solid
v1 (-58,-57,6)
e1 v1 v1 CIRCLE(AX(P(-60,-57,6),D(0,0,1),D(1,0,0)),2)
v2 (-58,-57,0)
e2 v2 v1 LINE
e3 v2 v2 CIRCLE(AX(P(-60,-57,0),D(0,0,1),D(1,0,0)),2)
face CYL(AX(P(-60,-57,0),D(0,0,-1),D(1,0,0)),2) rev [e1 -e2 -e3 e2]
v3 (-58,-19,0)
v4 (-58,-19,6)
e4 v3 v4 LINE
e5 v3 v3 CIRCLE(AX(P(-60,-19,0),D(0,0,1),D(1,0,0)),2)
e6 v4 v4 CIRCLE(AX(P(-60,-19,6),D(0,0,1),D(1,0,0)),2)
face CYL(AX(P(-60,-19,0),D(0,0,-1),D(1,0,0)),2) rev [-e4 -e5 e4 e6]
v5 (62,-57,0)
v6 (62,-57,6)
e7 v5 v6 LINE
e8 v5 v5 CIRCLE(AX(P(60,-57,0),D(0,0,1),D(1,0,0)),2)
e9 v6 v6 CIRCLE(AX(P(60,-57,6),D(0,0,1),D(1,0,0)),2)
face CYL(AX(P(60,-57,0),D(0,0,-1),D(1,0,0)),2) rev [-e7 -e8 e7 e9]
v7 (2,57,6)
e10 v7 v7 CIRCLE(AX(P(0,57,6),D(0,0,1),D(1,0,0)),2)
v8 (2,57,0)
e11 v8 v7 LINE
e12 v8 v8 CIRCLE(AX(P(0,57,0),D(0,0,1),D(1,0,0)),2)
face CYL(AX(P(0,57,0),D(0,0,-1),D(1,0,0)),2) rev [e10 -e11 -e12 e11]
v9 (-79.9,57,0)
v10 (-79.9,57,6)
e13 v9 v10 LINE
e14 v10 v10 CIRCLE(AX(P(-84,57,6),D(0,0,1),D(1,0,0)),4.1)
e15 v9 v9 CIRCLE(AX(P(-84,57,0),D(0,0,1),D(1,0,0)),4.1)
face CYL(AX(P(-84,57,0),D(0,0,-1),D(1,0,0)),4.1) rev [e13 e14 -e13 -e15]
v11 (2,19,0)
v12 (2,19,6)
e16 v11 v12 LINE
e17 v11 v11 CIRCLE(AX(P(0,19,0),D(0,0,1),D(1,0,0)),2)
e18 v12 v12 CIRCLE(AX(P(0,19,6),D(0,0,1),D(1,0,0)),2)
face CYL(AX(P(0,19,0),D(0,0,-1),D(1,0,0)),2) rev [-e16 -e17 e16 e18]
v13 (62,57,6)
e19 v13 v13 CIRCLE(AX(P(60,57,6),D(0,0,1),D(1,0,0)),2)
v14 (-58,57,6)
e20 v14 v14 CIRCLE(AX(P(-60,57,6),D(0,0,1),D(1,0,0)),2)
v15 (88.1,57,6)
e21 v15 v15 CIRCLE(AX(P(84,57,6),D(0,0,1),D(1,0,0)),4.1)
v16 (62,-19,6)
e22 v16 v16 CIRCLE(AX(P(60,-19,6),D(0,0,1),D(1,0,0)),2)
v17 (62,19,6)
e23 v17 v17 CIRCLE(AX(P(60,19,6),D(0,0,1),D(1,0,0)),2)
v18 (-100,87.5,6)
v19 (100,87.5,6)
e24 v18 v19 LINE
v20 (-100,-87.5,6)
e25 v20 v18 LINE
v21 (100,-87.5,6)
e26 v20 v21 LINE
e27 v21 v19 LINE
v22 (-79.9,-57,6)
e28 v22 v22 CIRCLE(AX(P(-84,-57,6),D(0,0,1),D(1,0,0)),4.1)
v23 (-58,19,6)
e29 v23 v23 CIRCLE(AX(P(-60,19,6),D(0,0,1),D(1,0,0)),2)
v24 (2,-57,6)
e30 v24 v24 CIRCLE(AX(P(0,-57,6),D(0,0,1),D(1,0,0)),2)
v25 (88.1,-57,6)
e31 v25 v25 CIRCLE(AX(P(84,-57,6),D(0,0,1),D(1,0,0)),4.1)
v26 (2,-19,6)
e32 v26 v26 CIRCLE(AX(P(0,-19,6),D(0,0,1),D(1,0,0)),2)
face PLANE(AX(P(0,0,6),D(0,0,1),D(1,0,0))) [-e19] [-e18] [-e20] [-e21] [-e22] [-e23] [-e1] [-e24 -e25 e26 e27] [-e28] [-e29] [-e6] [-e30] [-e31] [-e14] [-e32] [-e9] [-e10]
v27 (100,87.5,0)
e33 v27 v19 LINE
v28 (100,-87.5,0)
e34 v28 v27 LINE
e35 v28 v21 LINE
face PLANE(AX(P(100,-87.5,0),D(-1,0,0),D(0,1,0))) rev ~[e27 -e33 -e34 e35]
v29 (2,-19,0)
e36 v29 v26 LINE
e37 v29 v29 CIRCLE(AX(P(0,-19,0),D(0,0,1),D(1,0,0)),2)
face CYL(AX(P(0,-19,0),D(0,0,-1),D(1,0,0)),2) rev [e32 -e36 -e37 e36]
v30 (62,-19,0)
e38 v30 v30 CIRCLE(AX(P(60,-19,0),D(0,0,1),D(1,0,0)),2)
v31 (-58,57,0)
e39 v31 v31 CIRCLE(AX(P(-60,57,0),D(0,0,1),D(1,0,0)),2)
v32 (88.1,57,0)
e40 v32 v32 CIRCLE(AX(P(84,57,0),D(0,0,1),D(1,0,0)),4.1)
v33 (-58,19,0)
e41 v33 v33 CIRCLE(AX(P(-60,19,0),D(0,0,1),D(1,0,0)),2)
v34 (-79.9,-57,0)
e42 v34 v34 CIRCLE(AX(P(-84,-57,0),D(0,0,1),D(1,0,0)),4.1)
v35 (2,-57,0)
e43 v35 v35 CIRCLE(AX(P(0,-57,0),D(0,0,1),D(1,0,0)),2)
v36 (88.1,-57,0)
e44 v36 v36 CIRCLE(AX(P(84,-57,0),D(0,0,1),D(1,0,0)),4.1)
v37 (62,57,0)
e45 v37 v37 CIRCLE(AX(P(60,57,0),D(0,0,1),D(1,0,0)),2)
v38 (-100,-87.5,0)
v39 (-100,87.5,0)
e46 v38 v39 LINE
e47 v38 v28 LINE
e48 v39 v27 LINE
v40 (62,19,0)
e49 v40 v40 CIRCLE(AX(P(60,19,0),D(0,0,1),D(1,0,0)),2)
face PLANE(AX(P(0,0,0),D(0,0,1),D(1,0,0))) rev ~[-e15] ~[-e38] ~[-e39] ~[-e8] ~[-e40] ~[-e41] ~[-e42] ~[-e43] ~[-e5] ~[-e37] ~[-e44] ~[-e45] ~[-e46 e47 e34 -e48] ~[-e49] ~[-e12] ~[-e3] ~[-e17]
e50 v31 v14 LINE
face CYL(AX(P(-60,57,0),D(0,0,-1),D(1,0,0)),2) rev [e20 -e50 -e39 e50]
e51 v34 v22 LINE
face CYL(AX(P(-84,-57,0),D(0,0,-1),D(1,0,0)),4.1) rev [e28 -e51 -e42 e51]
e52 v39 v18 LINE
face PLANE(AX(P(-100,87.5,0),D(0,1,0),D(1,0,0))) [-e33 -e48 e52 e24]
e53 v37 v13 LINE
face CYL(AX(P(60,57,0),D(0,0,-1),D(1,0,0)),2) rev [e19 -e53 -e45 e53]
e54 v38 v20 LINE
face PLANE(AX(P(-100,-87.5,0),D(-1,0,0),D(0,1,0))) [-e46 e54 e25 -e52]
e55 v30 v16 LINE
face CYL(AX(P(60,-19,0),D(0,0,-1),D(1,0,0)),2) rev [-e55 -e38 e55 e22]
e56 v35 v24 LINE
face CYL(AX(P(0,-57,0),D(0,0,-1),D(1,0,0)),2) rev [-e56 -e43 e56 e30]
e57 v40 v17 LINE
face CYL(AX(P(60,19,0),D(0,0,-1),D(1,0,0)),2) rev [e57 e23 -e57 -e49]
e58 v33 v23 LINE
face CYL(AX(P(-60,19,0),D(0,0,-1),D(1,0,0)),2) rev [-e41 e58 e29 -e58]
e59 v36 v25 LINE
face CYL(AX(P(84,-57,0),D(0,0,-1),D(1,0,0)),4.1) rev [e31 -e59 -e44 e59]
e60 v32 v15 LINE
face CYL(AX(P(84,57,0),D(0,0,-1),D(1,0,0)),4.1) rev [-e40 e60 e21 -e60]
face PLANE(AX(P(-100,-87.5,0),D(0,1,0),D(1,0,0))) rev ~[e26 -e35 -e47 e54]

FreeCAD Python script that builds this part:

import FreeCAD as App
import Part
import Sketcher

V = App.Vector


def add_polygon(sketch, points):
    """Adds a closed chain of lines whose ends are joined by coincident constraints."""
    first, n = sketch.GeometryCount, len(points)
    for a, b in zip(points, points[1:] + points[:1]):
        sketch.addGeometry(Part.LineSegment(App.Vector(*a, 0), App.Vector(*b, 0)), False)
    for i in range(n):
        sketch.addConstraint(Sketcher.Constraint("Coincident", first + i, 2, first + (i + 1) % n, 1))

doc = App.newDocument("Part")
params = doc.addObject("Spreadsheet::Sheet", "Params")
for row, (alias, value) in enumerate([
    ("sketch1_diameter", "4 mm"),
    ("sketch1_diameter2", "8.2 mm"),
    ("sketch1_width", "200 mm"),
    ("sketch1_height", "175 mm"),
    ("pad1_length", "6 mm"),
], start=1):
    params.set(f"A{row}", alias)
    params.set(f"B{row}", "=" + value)
    params.setAlias(f"B{row}", alias)

body = doc.addObject("PartDesign::Body", "Body")

# Sketch on XY plane
sketch1 = body.newObject("Sketcher::SketchObject", "Sketch")
sketch1.AttachmentSupport = (doc.getObject("XY_Plane"), [""])
sketch1.MapMode = "FlatFace"
add_polygon(sketch1, [(-100, 87.5), (-100, -87.5), (100, -87.5), (100, 87.5)])  # lines 0-3
sketch1.addGeometry(Part.Circle(V(-84, -57, 0), V(0, 0, 1), 4.1), False)  # 4
sketch1.addGeometry(Part.Circle(V(-60, -57, 0), V(0, 0, 1), 2), False)  # 5
sketch1.addGeometry(Part.Circle(V(-60, -19, 0), V(0, 0, 1), 2), False)  # 6
sketch1.addGeometry(Part.Circle(V(0, -57, 0), V(0, 0, 1), 2), False)  # 7
sketch1.addGeometry(Part.Circle(V(60, -57, 0), V(0, 0, 1), 2), False)  # 8
sketch1.addGeometry(Part.Circle(V(84, -57, 0), V(0, 0, 1), 4.1), False)  # 9
sketch1.addGeometry(Part.Circle(V(0, -19, 0), V(0, 0, 1), 2), False)  # 10
sketch1.addGeometry(Part.Circle(V(60, -19, 0), V(0, 0, 1), 2), False)  # 11
sketch1.addGeometry(Part.Circle(V(-60, 19, 0), V(0, 0, 1), 2), False)  # 12
sketch1.addGeometry(Part.Circle(V(-84, 57, 0), V(0, 0, 1), 4.1), False)  # 13
sketch1.addGeometry(Part.Circle(V(-60, 57, 0), V(0, 0, 1), 2), False)  # 14
sketch1.addGeometry(Part.Circle(V(0, 19, 0), V(0, 0, 1), 2), False)  # 15
sketch1.addGeometry(Part.Circle(V(60, 19, 0), V(0, 0, 1), 2), False)  # 16
sketch1.addGeometry(Part.Circle(V(0, 57, 0), V(0, 0, 1), 2), False)  # 17
sketch1.addGeometry(Part.Circle(V(60, 57, 0), V(0, 0, 1), 2), False)  # 18
sketch1.addGeometry(Part.Circle(V(84, 57, 0), V(0, 0, 1), 4.1), False)  # 19
sketch1.addConstraint([
    Sketcher.Constraint("Vertical", 0),
    Sketcher.Constraint("Horizontal", 1),
    Sketcher.Constraint("Vertical", 2),
    Sketcher.Constraint("Horizontal", 3),
    Sketcher.Constraint("Equal", 5, 6),
    Sketcher.Constraint("Equal", 6, 7),
    Sketcher.Constraint("Equal", 7, 8),
    Sketcher.Constraint("Equal", 4, 9),
    Sketcher.Constraint("Equal", 8, 10),
    Sketcher.Constraint("Equal", 10, 11),
    Sketcher.Constraint("Equal", 11, 12),
    Sketcher.Constraint("Equal", 9, 13),
    Sketcher.Constraint("Equal", 12, 14),
    Sketcher.Constraint("Equal", 14, 15),
    Sketcher.Constraint("Equal", 15, 16),
    Sketcher.Constraint("Equal", 16, 17),
    Sketcher.Constraint("Equal", 17, 18),
    Sketcher.Constraint("Equal", 13, 19),
    Sketcher.Constraint("Symmetric", 11, 3, 12, 3, -1, 1),
    Sketcher.Constraint("Symmetric", 9, 3, 13, 3, -1, 1),
    Sketcher.Constraint("Symmetric", 8, 3, 14, 3, -1, 1),
    Sketcher.Constraint("Symmetric", 10, 3, 15, 3, -1, 1),
    Sketcher.Constraint("Symmetric", 6, 3, 16, 3, -1, 1),
    Sketcher.Constraint("Symmetric", 7, 3, 17, 3, -1, 1),
    Sketcher.Constraint("Symmetric", 5, 3, 18, 3, -1, 1),
    Sketcher.Constraint("Symmetric", 4, 3, 19, 3, -1, 1),
    Sketcher.Constraint("Symmetric", 0, 2, 2, 2, -1, 1),
    Sketcher.Constraint("Symmetric", 5, 3, 8, 3, -2),
    Sketcher.Constraint("Symmetric", 4, 3, 9, 3, -2),
    Sketcher.Constraint("Symmetric", 6, 3, 11, 3, -2),
    Sketcher.Constraint("PointOnObject", 7, 3, -2),
    Sketcher.Constraint("PointOnObject", 10, 3, -2),
    Sketcher.Constraint("Horizontal", 4, 3, 5, 3),
    Sketcher.Constraint("Horizontal", 5, 3, 7, 3),
    Sketcher.Constraint("Horizontal", 6, 3, 10, 3),
    Sketcher.Constraint("Vertical", 5, 3, 6, 3),
    Sketcher.Constraint("Diameter", 5, 4.0),
    Sketcher.Constraint("Diameter", 4, 8.2),
    Sketcher.Constraint("DistanceX", 1, 1, 1, 2, 200.0),
    Sketcher.Constraint("DistanceY", 0, 2, 0, 1, 175.0),
    Sketcher.Constraint("DistanceX", 4, 3, -1, 1, 84.0),
    Sketcher.Constraint("DistanceY", 4, 3, -1, 1, 57.0),
    Sketcher.Constraint("DistanceX", 5, 3, -1, 1, 60.0),
    Sketcher.Constraint("DistanceY", 6, 3, -1, 1, 19.0),
])
sketch1.setExpression("Constraints[40]", "Params.sketch1_diameter")
sketch1.setExpression("Constraints[41]", "Params.sketch1_diameter2")
sketch1.setExpression("Constraints[42]", "Params.sketch1_width")
sketch1.setExpression("Constraints[43]", "Params.sketch1_height")
pad1 = body.newObject("PartDesign::Pad", "Pad")
pad1.Profile = sketch1
pad1.setExpression("Length", "Params.pad1_length")

doc.recompute()
